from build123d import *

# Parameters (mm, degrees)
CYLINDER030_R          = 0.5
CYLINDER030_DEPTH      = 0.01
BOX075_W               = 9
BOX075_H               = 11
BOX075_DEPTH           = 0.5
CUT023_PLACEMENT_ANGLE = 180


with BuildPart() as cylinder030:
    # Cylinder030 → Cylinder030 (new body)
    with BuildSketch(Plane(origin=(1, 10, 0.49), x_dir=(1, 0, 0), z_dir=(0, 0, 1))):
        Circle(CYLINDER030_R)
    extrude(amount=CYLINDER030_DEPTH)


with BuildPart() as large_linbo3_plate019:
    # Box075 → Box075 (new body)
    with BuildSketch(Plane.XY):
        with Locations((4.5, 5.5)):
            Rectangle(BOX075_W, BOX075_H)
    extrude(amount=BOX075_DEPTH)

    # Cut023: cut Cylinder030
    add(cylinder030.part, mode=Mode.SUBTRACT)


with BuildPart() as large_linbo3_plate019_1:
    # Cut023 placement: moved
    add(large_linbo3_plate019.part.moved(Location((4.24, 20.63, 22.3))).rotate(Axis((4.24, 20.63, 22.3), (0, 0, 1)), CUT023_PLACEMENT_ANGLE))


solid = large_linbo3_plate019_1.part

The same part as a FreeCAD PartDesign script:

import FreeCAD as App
import Part
import Sketcher
from FreeCAD import Vector

doc = App.newDocument("Part")
body = doc.addObject("PartDesign::Body", "Body")

sketch1 = body.newObject("Sketcher::SketchObject", "Sketch")
sketch1.AttachmentSupport = (doc.getObject("XY_Plane"), [""])
sketch1.MapMode = "FlatFace"
sketch1.AttachmentOffset = App.Placement(Vector(0, 0, 0.49), App.Rotation())
sketch1.addGeometry(Part.Circle(Vector(1, 10, 0), Vector(0, 0, 1), 0.5), False)
sketch1.addConstraint([
    Sketcher.Constraint("Diameter", 0, 1.0),
    Sketcher.Constraint("DistanceX", -1, 1, 0, 3, 1.0),
    Sketcher.Constraint("DistanceY", -1, 1, 0, 3, 10.0),
])
pad1 = body.newObject("PartDesign::Pad", "Pad")
pad1.Profile = sketch1
pad1.Length = 0.01
body2 = doc.addObject("PartDesign::Body", "Body001")

sketch2 = body2.newObject("Sketcher::SketchObject", "Sketch001")
sketch2.AttachmentSupport = (doc.getObject("XY_Plane001"), [""])
sketch2.MapMode = "FlatFace"
sketch2.addGeometry([
    Part.LineSegment(Vector(0, 11, 0), Vector(0, 0, 0)),
    Part.LineSegment(Vector(0, 0, 0), Vector(9, 0, 0)),
    Part.LineSegment(Vector(9, 0, 0), Vector(9, 11, 0)),
    Part.LineSegment(Vector(9, 11, 0), Vector(0, 11, 0)),
], False)
sketch2.addConstraint([
    Sketcher.Constraint("Coincident", 0, 2, 1, 1),
    Sketcher.Constraint("Coincident", 1, 2, 2, 1),
    Sketcher.Constraint("Coincident", 2, 2, 3, 1),
    Sketcher.Constraint("Coincident", 3, 2, 0, 1),
    Sketcher.Constraint("Vertical", 0),
    Sketcher.Constraint("Horizontal", 1),
    Sketcher.Constraint("Vertical", 2),
    Sketcher.Constraint("Horizontal", 3),
    Sketcher.Constraint("Coincident", 0, 2, -1, 1),
    Sketcher.Constraint("DistanceX", 1, 1, 1, 2, 9.0),
    Sketcher.Constraint("DistanceY", 0, 2, 0, 1, 11.0),
])
pad2 = body2.newObject("PartDesign::Pad", "Pad001")
pad2.Profile = sketch2
pad2.Length = 0.5
doc.recompute()

boolean = body2.newObject("PartDesign::Boolean", "Boolean")
boolean.Type = "Cut"
boolean.addObjects([body])
body3 = doc.addObject("PartDesign::Body", "Body002")
doc.recompute()

body2.Placement = App.Placement(Vector(4.24, 20.63, 22.3), App.Rotation(Vector(0, 0, 1), 180))
boolean2 = body3.newObject("PartDesign::Boolean", "Boolean001")
boolean2.Type = "Fuse"
boolean2.addObjects([body2])

doc.recompute()
